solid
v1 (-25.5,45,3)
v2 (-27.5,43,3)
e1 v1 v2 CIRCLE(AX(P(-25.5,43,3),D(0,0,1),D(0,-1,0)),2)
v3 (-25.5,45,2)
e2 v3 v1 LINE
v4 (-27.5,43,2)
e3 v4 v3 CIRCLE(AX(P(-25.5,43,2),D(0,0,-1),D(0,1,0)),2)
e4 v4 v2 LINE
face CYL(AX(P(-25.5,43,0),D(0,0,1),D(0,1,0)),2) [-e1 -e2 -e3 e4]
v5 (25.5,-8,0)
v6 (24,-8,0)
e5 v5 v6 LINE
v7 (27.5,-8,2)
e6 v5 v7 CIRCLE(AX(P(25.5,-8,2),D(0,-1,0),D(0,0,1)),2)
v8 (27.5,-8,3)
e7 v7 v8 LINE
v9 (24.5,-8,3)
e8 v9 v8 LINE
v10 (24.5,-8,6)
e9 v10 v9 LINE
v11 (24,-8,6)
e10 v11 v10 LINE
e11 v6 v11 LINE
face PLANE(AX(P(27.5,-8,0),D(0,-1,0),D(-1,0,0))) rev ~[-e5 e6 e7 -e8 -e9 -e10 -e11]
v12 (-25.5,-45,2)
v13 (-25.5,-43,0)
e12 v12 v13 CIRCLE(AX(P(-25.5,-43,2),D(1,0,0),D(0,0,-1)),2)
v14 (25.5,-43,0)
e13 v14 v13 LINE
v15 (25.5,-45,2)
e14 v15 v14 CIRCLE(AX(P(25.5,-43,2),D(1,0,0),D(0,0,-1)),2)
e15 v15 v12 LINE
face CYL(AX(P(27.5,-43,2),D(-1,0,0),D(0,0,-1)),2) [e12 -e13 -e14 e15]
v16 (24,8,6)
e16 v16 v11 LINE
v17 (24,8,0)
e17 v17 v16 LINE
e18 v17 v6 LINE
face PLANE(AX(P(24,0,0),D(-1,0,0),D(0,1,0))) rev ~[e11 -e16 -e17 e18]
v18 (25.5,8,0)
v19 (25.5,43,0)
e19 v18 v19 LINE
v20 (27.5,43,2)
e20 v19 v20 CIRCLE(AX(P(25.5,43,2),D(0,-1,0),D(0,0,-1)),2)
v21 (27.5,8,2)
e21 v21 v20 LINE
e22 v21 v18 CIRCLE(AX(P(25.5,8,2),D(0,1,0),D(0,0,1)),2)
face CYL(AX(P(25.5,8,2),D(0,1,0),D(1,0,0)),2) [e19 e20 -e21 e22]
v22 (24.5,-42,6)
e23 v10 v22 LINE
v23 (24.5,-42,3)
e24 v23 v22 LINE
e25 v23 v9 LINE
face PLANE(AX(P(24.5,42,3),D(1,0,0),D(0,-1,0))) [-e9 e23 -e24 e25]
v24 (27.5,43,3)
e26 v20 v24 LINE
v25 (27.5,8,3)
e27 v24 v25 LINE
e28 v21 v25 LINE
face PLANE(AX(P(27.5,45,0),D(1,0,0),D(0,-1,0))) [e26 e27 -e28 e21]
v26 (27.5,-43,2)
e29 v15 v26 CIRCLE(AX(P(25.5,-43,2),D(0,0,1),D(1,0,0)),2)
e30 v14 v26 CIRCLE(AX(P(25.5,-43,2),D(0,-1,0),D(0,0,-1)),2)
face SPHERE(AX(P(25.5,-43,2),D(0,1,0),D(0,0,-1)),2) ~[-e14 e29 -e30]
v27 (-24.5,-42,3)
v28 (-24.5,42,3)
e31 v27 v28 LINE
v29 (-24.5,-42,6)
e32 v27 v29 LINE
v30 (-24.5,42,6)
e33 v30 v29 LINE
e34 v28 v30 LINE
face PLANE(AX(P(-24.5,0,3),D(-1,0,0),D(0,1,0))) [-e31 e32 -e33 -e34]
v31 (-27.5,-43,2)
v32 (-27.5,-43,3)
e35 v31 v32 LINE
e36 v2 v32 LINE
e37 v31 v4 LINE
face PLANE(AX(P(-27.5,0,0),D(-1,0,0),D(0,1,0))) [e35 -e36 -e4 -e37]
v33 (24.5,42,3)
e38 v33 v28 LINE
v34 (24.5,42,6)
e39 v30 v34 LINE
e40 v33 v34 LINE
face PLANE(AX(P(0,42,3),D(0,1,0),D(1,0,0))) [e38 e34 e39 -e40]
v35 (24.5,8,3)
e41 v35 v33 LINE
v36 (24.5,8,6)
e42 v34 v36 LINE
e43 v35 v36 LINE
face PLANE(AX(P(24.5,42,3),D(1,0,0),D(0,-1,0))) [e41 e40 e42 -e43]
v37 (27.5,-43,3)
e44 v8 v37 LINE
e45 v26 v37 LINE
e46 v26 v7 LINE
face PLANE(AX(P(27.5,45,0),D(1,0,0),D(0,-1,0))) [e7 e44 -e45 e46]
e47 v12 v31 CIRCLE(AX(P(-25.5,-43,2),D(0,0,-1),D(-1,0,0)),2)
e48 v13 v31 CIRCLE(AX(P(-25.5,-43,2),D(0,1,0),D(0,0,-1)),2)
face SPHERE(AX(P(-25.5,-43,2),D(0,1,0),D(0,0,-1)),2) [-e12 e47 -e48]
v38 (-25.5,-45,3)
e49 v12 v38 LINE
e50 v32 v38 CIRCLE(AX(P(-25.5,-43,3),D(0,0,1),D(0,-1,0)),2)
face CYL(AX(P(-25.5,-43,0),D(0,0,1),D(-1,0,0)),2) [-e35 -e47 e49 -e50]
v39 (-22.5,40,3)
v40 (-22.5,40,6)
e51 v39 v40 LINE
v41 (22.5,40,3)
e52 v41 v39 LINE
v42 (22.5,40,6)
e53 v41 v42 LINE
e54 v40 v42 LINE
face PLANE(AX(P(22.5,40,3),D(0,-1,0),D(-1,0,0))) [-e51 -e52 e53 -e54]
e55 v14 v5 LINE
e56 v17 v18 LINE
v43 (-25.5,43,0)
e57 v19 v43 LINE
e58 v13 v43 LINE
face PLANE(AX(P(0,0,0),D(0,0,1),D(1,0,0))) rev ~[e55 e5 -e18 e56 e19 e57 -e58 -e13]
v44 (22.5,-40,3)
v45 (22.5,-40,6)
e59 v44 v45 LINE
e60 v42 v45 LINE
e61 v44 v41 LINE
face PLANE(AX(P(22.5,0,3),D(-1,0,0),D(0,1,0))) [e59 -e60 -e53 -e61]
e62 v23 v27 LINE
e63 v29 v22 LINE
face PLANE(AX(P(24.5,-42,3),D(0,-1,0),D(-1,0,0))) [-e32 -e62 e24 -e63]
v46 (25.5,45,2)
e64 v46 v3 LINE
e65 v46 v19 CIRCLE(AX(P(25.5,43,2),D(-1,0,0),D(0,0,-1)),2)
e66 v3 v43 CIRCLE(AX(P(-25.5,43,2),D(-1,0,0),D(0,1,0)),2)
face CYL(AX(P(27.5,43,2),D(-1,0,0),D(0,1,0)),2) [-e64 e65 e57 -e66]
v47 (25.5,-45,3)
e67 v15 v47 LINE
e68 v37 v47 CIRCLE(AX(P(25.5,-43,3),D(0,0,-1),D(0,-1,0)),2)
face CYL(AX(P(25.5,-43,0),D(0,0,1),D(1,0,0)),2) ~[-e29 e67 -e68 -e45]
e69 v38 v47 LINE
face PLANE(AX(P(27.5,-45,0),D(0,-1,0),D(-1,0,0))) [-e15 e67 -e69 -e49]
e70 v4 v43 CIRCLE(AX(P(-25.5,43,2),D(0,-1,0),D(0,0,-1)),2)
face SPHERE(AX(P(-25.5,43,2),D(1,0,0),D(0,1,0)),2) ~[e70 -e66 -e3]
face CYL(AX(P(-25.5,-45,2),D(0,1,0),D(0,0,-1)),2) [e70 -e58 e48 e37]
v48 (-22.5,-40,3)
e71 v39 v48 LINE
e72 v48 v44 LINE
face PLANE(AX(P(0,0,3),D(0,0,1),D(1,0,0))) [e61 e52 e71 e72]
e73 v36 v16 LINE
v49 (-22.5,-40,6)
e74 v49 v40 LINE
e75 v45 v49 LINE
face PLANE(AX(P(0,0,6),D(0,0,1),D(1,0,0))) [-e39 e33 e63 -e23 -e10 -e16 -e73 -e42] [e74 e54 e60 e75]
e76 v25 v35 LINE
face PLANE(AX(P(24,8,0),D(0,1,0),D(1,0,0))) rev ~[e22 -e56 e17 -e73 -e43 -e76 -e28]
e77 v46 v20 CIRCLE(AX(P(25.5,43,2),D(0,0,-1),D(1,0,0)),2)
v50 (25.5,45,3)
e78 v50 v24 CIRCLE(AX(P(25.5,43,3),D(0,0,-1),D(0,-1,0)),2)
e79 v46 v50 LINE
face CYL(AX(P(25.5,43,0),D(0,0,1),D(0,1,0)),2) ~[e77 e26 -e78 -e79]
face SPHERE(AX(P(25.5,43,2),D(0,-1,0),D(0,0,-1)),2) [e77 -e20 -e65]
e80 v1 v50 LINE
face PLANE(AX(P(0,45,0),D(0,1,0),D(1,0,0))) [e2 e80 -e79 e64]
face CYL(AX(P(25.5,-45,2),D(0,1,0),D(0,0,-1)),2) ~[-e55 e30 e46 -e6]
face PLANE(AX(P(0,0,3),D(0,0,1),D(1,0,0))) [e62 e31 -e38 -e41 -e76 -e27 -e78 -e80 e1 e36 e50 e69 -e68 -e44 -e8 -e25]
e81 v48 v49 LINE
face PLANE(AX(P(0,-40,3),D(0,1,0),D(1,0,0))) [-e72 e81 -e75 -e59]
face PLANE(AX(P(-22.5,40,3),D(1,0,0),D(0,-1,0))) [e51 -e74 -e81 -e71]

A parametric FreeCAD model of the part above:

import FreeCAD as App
import Part
import Sketcher

V = App.Vector
Q = App.Units.Quantity


def edges_at(feature, points):
    """Names of the edges that pass closest to the given points."""
    edges = feature.Shape.Edges
    near = lambda p: min(range(len(edges)), key=lambda i: edges[i].distToShape(Part.Vertex(*p))[0])
    return sorted({f"Edge{near(p) + 1}" for p in points})

doc = App.newDocument("Part")
params = doc.addObject("Spreadsheet::Sheet", "Params")
for row, (alias, value) in enumerate([
    ("sketch1_width", "55 mm"),
    ("sketch1_height", "90 mm"),
    ("pad1_length", "3 mm"),
    ("sketch2_width", "49 mm"),
    ("sketch2_height", "84 mm"),
    ("pad2_length", "3 mm"),
    ("sketch3_height", "16 mm"),
    ("sketch3_width", "3.5 mm"),
    ("fillet_radius", "2 mm"),
], start=1):
    params.set(f"A{row}", alias)
    params.set(f"B{row}", "=" + value)
    params.setAlias(f"B{row}", alias)

body = doc.addObject("PartDesign::Body", "Body")

# Sketch on XY plane
sketch1 = body.newObject("Sketcher::SketchObject", "Sketch")
sketch1.AttachmentSupport = (doc.getObject("XY_Plane"), [""])
sketch1.MapMode = "FlatFace"
sketch1.addGeometry(Part.LineSegment(V(28, 45, 0), V(-28, 45, 0)), False)
sketch1.addGeometry(Part.LineSegment(V(-28, 45, 0), V(-28, -45, 0)), False)
sketch1.addGeometry(Part.LineSegment(V(-28, -45, 0), V(28, -45, 0)), False)
sketch1.addGeometry(Part.LineSegment(V(28, -45, 0), V(28, 45, 0)), False)
sketch1.addConstraint(Sketcher.Constraint("Coincident", 0, 2, 1, 1))
sketch1.addConstraint(Sketcher.Constraint("Coincident", 1, 2, 2, 1))
sketch1.addConstraint(Sketcher.Constraint("Coincident", 2, 2, 3, 1))
sketch1.addConstraint(Sketcher.Constraint("Coincident", 3, 2, 0, 1))
sketch1.addConstraint(Sketcher.Constraint("Horizontal", 0))
sketch1.addConstraint(Sketcher.Constraint("Vertical", 1))
sketch1.addConstraint(Sketcher.Constraint("Horizontal", 2))
sketch1.addConstraint(Sketcher.Constraint("Vertical", 3))
sketch1.addConstraint(Sketcher.Constraint("Symmetric", 0, 2, 2, 2, -1, 1))
sketch1.addConstraint(Sketcher.Constraint("DistanceX", 0, 2, 0, 1, Q("55 mm")))
sketch1.addConstraint(Sketcher.Constraint("DistanceY", 1, 2, 1, 1, Q("90 mm")))
sketch1.setExpression("Constraints[9]", "Params.sketch1_width")
sketch1.setExpression("Constraints[10]", "Params.sketch1_height")
pad1 = body.newObject("PartDesign::Pad", "Pad")
pad1.Profile = sketch1
pad1.setExpression("Length", "Params.pad1_length")

# Sketch on XY plane
sketch2 = body.newObject("Sketcher::SketchObject", "Sketch001")
sketch2.AttachmentSupport = (doc.getObject("XY_Plane"), [""])
sketch2.MapMode = "FlatFace"
sketch2.AttachmentOffset = App.Placement(V(0, 0, 3), App.Rotation())
sketch2.addGeometry(Part.LineSegment(V(24, 42, 0), V(-24, 42, 0)), False)
sketch2.addGeometry(Part.LineSegment(V(-24, 42, 0), V(-24, -42, 0)), False)
sketch2.addGeometry(Part.LineSegment(V(-24, -42, 0), V(24, -42, 0)), False)
sketch2.addGeometry(Part.LineSegment(V(24, -42, 0), V(24, 42, 0)), False)
sketch2.addGeometry(Part.LineSegment(V(22, 40, 0), V(22, -40, 0)), False)
sketch2.addGeometry(Part.LineSegment(V(22, -40, 0), V(-22, -40, 0)), False)
sketch2.addGeometry(Part.LineSegment(V(-22, -40, 0), V(-22, 40, 0)), False)
sketch2.addGeometry(Part.LineSegment(V(-22, 40, 0), V(22, 40, 0)), False)
sketch2.addConstraint(Sketcher.Constraint("Coincident", 0, 2, 1, 1))
sketch2.addConstraint(Sketcher.Constraint("Coincident", 1, 2, 2, 1))
sketch2.addConstraint(Sketcher.Constraint("Coincident", 2, 2, 3, 1))
sketch2.addConstraint(Sketcher.Constraint("Coincident", 3, 2, 0, 1))
sketch2.addConstraint(Sketcher.Constraint("Coincident", 4, 2, 5, 1))
sketch2.addConstraint(Sketcher.Constraint("Coincident", 5, 2, 6, 1))
sketch2.addConstraint(Sketcher.Constraint("Coincident", 6, 2, 7, 1))
sketch2.addConstraint(Sketcher.Constraint("Coincident", 7, 2, 4, 1))
sketch2.addConstraint(Sketcher.Constraint("Horizontal", 0))
sketch2.addConstraint(Sketcher.Constraint("Vertical", 1))
sketch2.addConstraint(Sketcher.Constraint("Horizontal", 2))
sketch2.addConstraint(Sketcher.Constraint("Vertical", 3))
sketch2.addConstraint(Sketcher.Constraint("Vertical", 4))
sketch2.addConstraint(Sketcher.Constraint("Horizontal", 5))
sketch2.addConstraint(Sketcher.Constraint("Vertical", 6))
sketch2.addConstraint(Sketcher.Constraint("Horizontal", 7))
sketch2.addConstraint(Sketcher.Constraint("Symmetric", 0, 2, 2, 2, -1, 1))
sketch2.addConstraint(Sketcher.Constraint("Symmetric", 4, 2, 6, 2, -1, 1))
sketch2.addConstraint(Sketcher.Constraint("DistanceX", 0, 2, 0, 1, Q("49 mm")))
sketch2.addConstraint(Sketcher.Constraint("DistanceY", 1, 2, 1, 1, Q("84 mm")))
sketch2.addConstraint(Sketcher.Constraint("DistanceX", 4, 2, 2, 2, Q("2 mm")))
sketch2.addConstraint(Sketcher.Constraint("DistanceY", 2, 2, 4, 2, Q("2 mm")))
sketch2.setExpression("Constraints[18]", "Params.sketch2_width")
sketch2.setExpression("Constraints[19]", "Params.sketch2_height")
pad2 = body.newObject("PartDesign::Pad", "Pad001")
pad2.Profile = sketch2
pad2.setExpression("Length", "Params.pad2_length")

# Sketch on XY plane
sketch3 = body.newObject("Sketcher::SketchObject", "Sketch002")
sketch3.AttachmentSupport = (doc.getObject("XY_Plane"), [""])
sketch3.MapMode = "FlatFace"
sketch3.addGeometry(Part.LineSegment(V(24, 8, 0), V(27.5, 8, 0)), False)
sketch3.addGeometry(Part.LineSegment(V(27.5, 8, 0), V(27.5, -8, 0)), False)
sketch3.addGeometry(Part.LineSegment(V(27.5, -8, 0), V(24, -8, 0)), False)
sketch3.addGeometry(Part.LineSegment(V(24, -8, 0), V(24, 8, 0)), False)
sketch3.addConstraint(Sketcher.Constraint("Coincident", 0, 2, 1, 1))
sketch3.addConstraint(Sketcher.Constraint("Coincident", 1, 2, 2, 1))
sketch3.addConstraint(Sketcher.Constraint("Coincident", 2, 2, 3, 1))
sketch3.addConstraint(Sketcher.Constraint("Coincident", 3, 2, 0, 1))
sketch3.addConstraint(Sketcher.Constraint("Horizontal", 0))
sketch3.addConstraint(Sketcher.Constraint("Vertical", 1))
sketch3.addConstraint(Sketcher.Constraint("Horizontal", 2))
sketch3.addConstraint(Sketcher.Constraint("Vertical", 3))
sketch3.addConstraint(Sketcher.Constraint("DistanceY", 1, 2, 1, 1, Q("16 mm")))
sketch3.addConstraint(Sketcher.Constraint("DistanceX", 0, 1, 0, 2, Q("3.5 mm")))
sketch3.addConstraint(Sketcher.Constraint("DistanceY", -1, 1, 0, 2, Q("8 mm")))
sketch3.addConstraint(Sketcher.Constraint("DistanceX", -1, 1, 2, 2, Q("24 mm")))
sketch3.setExpression("Constraints[8]", "Params.sketch3_height")
sketch3.setExpression("Constraints[9]", "Params.sketch3_width")
pocket1 = body.newObject("PartDesign::Pocket", "Pocket")
pocket1.Profile = sketch3
pocket1.Type = "ThroughAll"
pocket1.Reversed = True
doc.recompute()

fillet = body.newObject("PartDesign::Fillet", "Fillet")
fillet.Base = (pocket1, edges_at(pocket1, [
    (27.5, 26.5, 0),
    (0, 45, 0),
    (27.5, 45, 1.5),
    (-27.5, 45, 1.5),
    (-27.5, 0, 0),
    (27.5, -26.5, 0),
    (0, -45, 0),
    (27.5, -45, 1.5),
    (-27.5, -45, 1.5),
]))
fillet.setExpression("Radius", "Params.fillet_radius")

doc.recompute()
